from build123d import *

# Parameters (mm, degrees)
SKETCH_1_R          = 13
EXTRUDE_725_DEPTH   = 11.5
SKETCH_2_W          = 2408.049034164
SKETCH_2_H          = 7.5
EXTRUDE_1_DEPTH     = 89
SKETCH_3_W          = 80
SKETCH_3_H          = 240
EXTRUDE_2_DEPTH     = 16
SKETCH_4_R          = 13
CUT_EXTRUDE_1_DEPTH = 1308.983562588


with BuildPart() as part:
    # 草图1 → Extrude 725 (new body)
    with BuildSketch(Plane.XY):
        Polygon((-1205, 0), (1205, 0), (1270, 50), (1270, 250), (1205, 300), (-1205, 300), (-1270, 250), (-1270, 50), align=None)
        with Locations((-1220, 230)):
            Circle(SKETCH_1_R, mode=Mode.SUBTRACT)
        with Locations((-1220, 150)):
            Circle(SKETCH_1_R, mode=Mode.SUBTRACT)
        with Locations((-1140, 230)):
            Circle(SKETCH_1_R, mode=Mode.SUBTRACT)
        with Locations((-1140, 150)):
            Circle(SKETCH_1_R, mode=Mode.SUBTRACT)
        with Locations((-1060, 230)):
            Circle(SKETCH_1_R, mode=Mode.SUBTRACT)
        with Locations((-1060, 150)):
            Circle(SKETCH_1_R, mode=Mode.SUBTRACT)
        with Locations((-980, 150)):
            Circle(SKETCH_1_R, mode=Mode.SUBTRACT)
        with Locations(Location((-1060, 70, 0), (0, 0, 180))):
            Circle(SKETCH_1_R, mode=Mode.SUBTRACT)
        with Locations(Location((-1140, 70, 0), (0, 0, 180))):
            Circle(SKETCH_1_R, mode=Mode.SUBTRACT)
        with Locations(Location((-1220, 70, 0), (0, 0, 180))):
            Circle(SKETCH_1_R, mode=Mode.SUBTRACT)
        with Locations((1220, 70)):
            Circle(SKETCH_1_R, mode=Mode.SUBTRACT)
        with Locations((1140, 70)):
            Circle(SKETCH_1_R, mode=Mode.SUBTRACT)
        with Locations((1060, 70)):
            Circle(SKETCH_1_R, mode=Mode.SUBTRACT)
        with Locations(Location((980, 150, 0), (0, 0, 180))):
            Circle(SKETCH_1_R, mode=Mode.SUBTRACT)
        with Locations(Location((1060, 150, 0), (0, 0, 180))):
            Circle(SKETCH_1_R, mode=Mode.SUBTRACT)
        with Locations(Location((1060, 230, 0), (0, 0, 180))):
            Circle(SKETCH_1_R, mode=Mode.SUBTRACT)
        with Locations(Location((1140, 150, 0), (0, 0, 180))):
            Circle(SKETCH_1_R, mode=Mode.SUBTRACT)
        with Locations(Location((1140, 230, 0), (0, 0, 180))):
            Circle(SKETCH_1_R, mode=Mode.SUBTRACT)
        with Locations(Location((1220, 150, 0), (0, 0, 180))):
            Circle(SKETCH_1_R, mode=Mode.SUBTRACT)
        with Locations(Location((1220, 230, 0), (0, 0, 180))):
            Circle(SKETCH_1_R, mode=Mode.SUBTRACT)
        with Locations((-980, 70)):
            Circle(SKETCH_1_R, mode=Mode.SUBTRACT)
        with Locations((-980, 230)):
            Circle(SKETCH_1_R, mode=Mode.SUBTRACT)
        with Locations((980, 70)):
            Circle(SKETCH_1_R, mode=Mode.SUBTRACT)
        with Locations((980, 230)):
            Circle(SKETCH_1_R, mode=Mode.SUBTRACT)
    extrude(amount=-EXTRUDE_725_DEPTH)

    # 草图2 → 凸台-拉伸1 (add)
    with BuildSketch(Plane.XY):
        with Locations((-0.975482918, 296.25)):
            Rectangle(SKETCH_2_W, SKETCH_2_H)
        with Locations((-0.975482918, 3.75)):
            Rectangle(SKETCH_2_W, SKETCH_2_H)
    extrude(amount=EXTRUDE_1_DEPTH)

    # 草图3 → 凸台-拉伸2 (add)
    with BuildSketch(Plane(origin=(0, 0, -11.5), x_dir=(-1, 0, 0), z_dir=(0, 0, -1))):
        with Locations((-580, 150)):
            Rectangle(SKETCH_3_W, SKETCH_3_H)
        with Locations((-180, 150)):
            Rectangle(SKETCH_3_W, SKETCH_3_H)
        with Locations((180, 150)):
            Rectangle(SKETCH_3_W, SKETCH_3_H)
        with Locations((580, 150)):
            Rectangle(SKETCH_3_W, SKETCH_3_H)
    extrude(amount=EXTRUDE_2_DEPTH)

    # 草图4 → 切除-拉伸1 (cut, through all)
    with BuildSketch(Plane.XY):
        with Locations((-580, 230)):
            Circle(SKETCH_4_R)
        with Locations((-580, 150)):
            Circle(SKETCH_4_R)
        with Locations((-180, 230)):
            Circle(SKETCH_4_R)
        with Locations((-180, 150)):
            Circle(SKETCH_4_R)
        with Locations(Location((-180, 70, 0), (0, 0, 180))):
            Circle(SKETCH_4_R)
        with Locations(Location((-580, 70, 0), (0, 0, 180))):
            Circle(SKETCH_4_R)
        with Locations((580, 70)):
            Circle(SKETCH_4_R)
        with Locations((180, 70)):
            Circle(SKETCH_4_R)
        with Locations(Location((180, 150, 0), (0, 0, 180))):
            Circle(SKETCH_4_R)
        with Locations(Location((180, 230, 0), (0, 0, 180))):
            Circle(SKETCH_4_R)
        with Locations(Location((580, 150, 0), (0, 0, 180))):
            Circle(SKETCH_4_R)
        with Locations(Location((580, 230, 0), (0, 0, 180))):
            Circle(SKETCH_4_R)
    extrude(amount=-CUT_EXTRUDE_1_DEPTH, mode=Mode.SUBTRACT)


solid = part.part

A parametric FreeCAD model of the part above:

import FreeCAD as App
import Part
import Sketcher

V = App.Vector
Q = App.Units.Quantity


def add_polygon(sketch, points):
    """Adds a closed chain of lines whose ends are joined by coincident constraints."""
    first, n = sketch.GeometryCount, len(points)
    for a, b in zip(points, points[1:] + points[:1]):
        sketch.addGeometry(Part.LineSegment(App.Vector(*a, 0), App.Vector(*b, 0)), False)
    for i in range(n):
        sketch.addConstraint(Sketcher.Constraint("Coincident", first + i, 2, first + (i + 1) % n, 1))

doc = App.newDocument("Part")
body = doc.addObject("PartDesign::Body", "Body")

# Sketch on XY plane
sketch1 = body.newObject("Sketcher::SketchObject", "Sketch")
sketch1.AttachmentSupport = (doc.getObject("XY_Plane"), [""])
sketch1.MapMode = "FlatFace"
add_polygon(sketch1, [(-1205, 0), (1205, 0), (1270, 50), (1270, 250), (1205, 300), (-1205, 300), (-1270, 250), (-1270, 50)])  # lines 0-7
sketch1.addGeometry(Part.Circle(V(-1220, 70, 0), V(0, 0, 1), 13), False)  # 8
sketch1.addGeometry(Part.Circle(V(-1140, 70, 0), V(0, 0, 1), 13), False)  # 9
sketch1.addGeometry(Part.Circle(V(-1060, 70, 0), V(0, 0, 1), 13), False)  # 10
sketch1.addGeometry(Part.Circle(V(-980, 70, 0), V(0, 0, 1), 13), False)  # 11
sketch1.addGeometry(Part.Circle(V(980, 70, 0), V(0, 0, 1), 13), False)  # 12
sketch1.addGeometry(Part.Circle(V(1060, 70, 0), V(0, 0, 1), 13), False)  # 13
sketch1.addGeometry(Part.Circle(V(1140, 70, 0), V(0, 0, 1), 13), False)  # 14
sketch1.addGeometry(Part.Circle(V(1220, 70, 0), V(0, 0, 1), 13), False)  # 15
sketch1.addGeometry(Part.Circle(V(-1220, 150, 0), V(0, 0, 1), 13), False)  # 16
sketch1.addGeometry(Part.Circle(V(-1140, 150, 0), V(0, 0, 1), 13), False)  # 17
sketch1.addGeometry(Part.Circle(V(-1060, 150, 0), V(0, 0, 1), 13), False)  # 18
sketch1.addGeometry(Part.Circle(V(-980, 150, 0), V(0, 0, 1), 13), False)  # 19
sketch1.addGeometry(Part.Circle(V(-1220, 230, 0), V(0, 0, 1), 13), False)  # 20
sketch1.addGeometry(Part.Circle(V(-1140, 230, 0), V(0, 0, 1), 13), False)  # 21
sketch1.addGeometry(Part.Circle(V(-1060, 230, 0), V(0, 0, 1), 13), False)  # 22
sketch1.addGeometry(Part.Circle(V(-980, 230, 0), V(0, 0, 1), 13), False)  # 23
sketch1.addGeometry(Part.Circle(V(980, 150, 0), V(0, 0, 1), 13), False)  # 24
sketch1.addGeometry(Part.Circle(V(1060, 150, 0), V(0, 0, 1), 13), False)  # 25
sketch1.addGeometry(Part.Circle(V(1140, 150, 0), V(0, 0, 1), 13), False)  # 26
sketch1.addGeometry(Part.Circle(V(1220, 150, 0), V(0, 0, 1), 13), False)  # 27
sketch1.addGeometry(Part.Circle(V(980, 230, 0), V(0, 0, 1), 13), False)  # 28
sketch1.addGeometry(Part.Circle(V(1060, 230, 0), V(0, 0, 1), 13), False)  # 29
sketch1.addGeometry(Part.Circle(V(1140, 230, 0), V(0, 0, 1), 13), False)  # 30
sketch1.addGeometry(Part.Circle(V(1220, 230, 0), V(0, 0, 1), 13), False)  # 31
sketch1.addConstraint(Sketcher.Constraint("Horizontal", 0))
sketch1.addConstraint(Sketcher.Constraint("Vertical", 2))
sketch1.addConstraint(Sketcher.Constraint("Horizontal", 4))
sketch1.addConstraint(Sketcher.Constraint("Vertical", 6))
sketch1.addConstraint(Sketcher.Constraint("Equal", 8, 9))
sketch1.addConstraint(Sketcher.Constraint("Equal", 9, 10))
sketch1.addConstraint(Sketcher.Constraint("Equal", 10, 11))
sketch1.addConstraint(Sketcher.Constraint("Equal", 11, 12))
sketch1.addConstraint(Sketcher.Constraint("Equal", 12, 13))
sketch1.addConstraint(Sketcher.Constraint("Equal", 13, 14))
sketch1.addConstraint(Sketcher.Constraint("Equal", 14, 15))
sketch1.addConstraint(Sketcher.Constraint("Equal", 15, 16))
sketch1.addConstraint(Sketcher.Constraint("Equal", 16, 17))
sketch1.addConstraint(Sketcher.Constraint("Equal", 17, 18))
sketch1.addConstraint(Sketcher.Constraint("Equal", 18, 19))
sketch1.addConstraint(Sketcher.Constraint("Equal", 19, 20))
sketch1.addConstraint(Sketcher.Constraint("Equal", 20, 21))
sketch1.addConstraint(Sketcher.Constraint("Equal", 21, 22))
sketch1.addConstraint(Sketcher.Constraint("Equal", 22, 23))
sketch1.addConstraint(Sketcher.Constraint("Equal", 23, 24))
sketch1.addConstraint(Sketcher.Constraint("Equal", 24, 25))
sketch1.addConstraint(Sketcher.Constraint("Equal", 25, 26))
sketch1.addConstraint(Sketcher.Constraint("Equal", 26, 27))
sketch1.addConstraint(Sketcher.Constraint("Equal", 27, 28))
sketch1.addConstraint(Sketcher.Constraint("Equal", 28, 29))
sketch1.addConstraint(Sketcher.Constraint("Equal", 29, 30))
sketch1.addConstraint(Sketcher.Constraint("Equal", 30, 31))
sketch1.addConstraint(Sketcher.Constraint("Symmetric", 0, 2, 7, 2, -1, 1))
sketch1.addConstraint(Sketcher.Constraint("Symmetric", 11, 3, 12, 3, -2))
sketch1.addConstraint(Sketcher.Constraint("Symmetric", 10, 3, 13, 3, -2))
sketch1.addConstraint(Sketcher.Constraint("Symmetric", 9, 3, 14, 3, -2))
sketch1.addConstraint(Sketcher.Constraint("Symmetric", 8, 3, 15, 3, -2))
sketch1.addConstraint(Sketcher.Constraint("Symmetric", 19, 3, 24, 3, -2))
sketch1.addConstraint(Sketcher.Constraint("Symmetric", 18, 3, 25, 3, -2))
sketch1.addConstraint(Sketcher.Constraint("Symmetric", 17, 3, 26, 3, -2))
sketch1.addConstraint(Sketcher.Constraint("Symmetric", 16, 3, 27, 3, -2))
sketch1.addConstraint(Sketcher.Constraint("Symmetric", 23, 3, 28, 3, -2))
sketch1.addConstraint(Sketcher.Constraint("Symmetric", 22, 3, 29, 3, -2))
sketch1.addConstraint(Sketcher.Constraint("Symmetric", 21, 3, 30, 3, -2))
sketch1.addConstraint(Sketcher.Constraint("Symmetric", 20, 3, 31, 3, -2))
sketch1.addConstraint(Sketcher.Constraint("Symmetric", 2, 2, 5, 2, -2))
sketch1.addConstraint(Sketcher.Constraint("Parallel", 1, 5))
sketch1.addConstraint(Sketcher.Constraint("Parallel", 3, 7))
sketch1.addConstraint(Sketcher.Constraint("Horizontal", 8, 3, 9, 3))
sketch1.addConstraint(Sketcher.Constraint("Horizontal", 9, 3, 10, 3))
sketch1.addConstraint(Sketcher.Constraint("Horizontal", 10, 3, 11, 3))
sketch1.addConstraint(Sketcher.Constraint("Horizontal", 16, 3, 17, 3))
sketch1.addConstraint(Sketcher.Constraint("Horizontal", 17, 3, 18, 3))
sketch1.addConstraint(Sketcher.Constraint("Horizontal", 18, 3, 19, 3))
sketch1.addConstraint(Sketcher.Constraint("Horizontal", 20, 3, 21, 3))
sketch1.addConstraint(Sketcher.Constraint("Horizontal", 21, 3, 22, 3))
sketch1.addConstraint(Sketcher.Constraint("Horizontal", 22, 3, 23, 3))
sketch1.addConstraint(Sketcher.Constraint("Horizontal", 1, 2, 6, 2))
sketch1.addConstraint(Sketcher.Constraint("Vertical", 8, 3, 16, 3))
sketch1.addConstraint(Sketcher.Constraint("Vertical", 9, 3, 17, 3))
sketch1.addConstraint(Sketcher.Constraint("Vertical", 10, 3, 18, 3))
sketch1.addConstraint(Sketcher.Constraint("Vertical", 11, 3, 19, 3))
sketch1.addConstraint(Sketcher.Constraint("Vertical", 16, 3, 20, 3))
sketch1.addConstraint(Sketcher.Constraint("Vertical", 17, 3, 21, 3))
sketch1.addConstraint(Sketcher.Constraint("Vertical", 18, 3, 22, 3))
sketch1.addConstraint(Sketcher.Constraint("Vertical", 19, 3, 23, 3))
sketch1.addConstraint(Sketcher.Constraint("Vertical", 0, 2, 3, 2))
sketch1.addConstraint(Sketcher.Constraint("Diameter", 8, Q("26 mm")))
sketch1.addConstraint(Sketcher.Constraint("DistanceX", 0, 1, 0, 2, Q("2410 mm")))
sketch1.addConstraint(Sketcher.Constraint("DistanceY", 2, 1, 2, 2, Q("200 mm")))
sketch1.addConstraint(Sketcher.Constraint("DistanceX", 8, 3, -1, 1, Q("1220 mm")))
sketch1.addConstraint(Sketcher.Constraint("DistanceY", -1, 1, 8, 3, Q("70 mm")))
sketch1.addConstraint(Sketcher.Constraint("DistanceX", 9, 3, -1, 1, Q("1140 mm")))
sketch1.addConstraint(Sketcher.Constraint("DistanceX", 10, 3, -1, 1, Q("1060 mm")))
sketch1.addConstraint(Sketcher.Constraint("DistanceX", 11, 3, -1, 1, Q("980 mm")))
sketch1.addConstraint(Sketcher.Constraint("DistanceY", -1, 1, 16, 3, Q("150 mm")))
sketch1.addConstraint(Sketcher.Constraint("DistanceY", -1, 1, 20, 3, Q("230 mm")))
sketch1.addConstraint(Sketcher.Constraint("DistanceX", -1, 1, 1, 2, Q("1270 mm")))
sketch1.addConstraint(Sketcher.Constraint("DistanceY", -1, 1, 1, 2, Q("50 mm")))
pad1 = body.newObject("PartDesign::Pad", "Pad")
pad1.Profile = sketch1
pad1.Length = 11.5
pad1.Reversed = True

# Sketch on XY plane
sketch2 = body.newObject("Sketcher::SketchObject", "Sketch001")
sketch2.AttachmentSupport = (doc.getObject("XY_Plane"), [""])
sketch2.MapMode = "FlatFace"
add_polygon(sketch2, [(-1205, 300), (-1205, 292), (1203, 292), (1203, 300)])  # lines 0-3
add_polygon(sketch2, [(-1205, 8), (-1205, 0), (1203, 0), (1203, 8)])  # lines 4-7
sketch2.addConstraint(Sketcher.Constraint("Vertical", 0))
sketch2.addConstraint(Sketcher.Constraint("Horizontal", 1))
sketch2.addConstraint(Sketcher.Constraint("Vertical", 2))
sketch2.addConstraint(Sketcher.Constraint("Horizontal", 3))
sketch2.addConstraint(Sketcher.Constraint("Vertical", 4))
sketch2.addConstraint(Sketcher.Constraint("Horizontal", 5))
sketch2.addConstraint(Sketcher.Constraint("Vertical", 6))
sketch2.addConstraint(Sketcher.Constraint("Horizontal", 7))
sketch2.addConstraint(Sketcher.Constraint("PointOnObject", 4, 2, -1))
sketch2.addConstraint(Sketcher.Constraint("Vertical", 3, 2, 4, 2))
sketch2.addConstraint(Sketcher.Constraint("Vertical", 2, 2, 5, 2))
sketch2.addConstraint(Sketcher.Constraint("Equal", 2, 4))
sketch2.addConstraint(Sketcher.Constraint("DistanceY", 0, 2, 0, 1, Q("7.5 mm")))
sketch2.addConstraint(Sketcher.Constraint("DistanceX", 0, 2, -1, 1, Q("1205 mm")))
sketch2.addConstraint(Sketcher.Constraint("DistanceY", -1, 1, 2, 2, Q("300 mm")))
sketch2.addConstraint(Sketcher.Constraint("DistanceX", 1, 1, 1, 2, Q("2408.049034 mm")))
pad2 = body.newObject("PartDesign::Pad", "Pad001")
pad2.Profile = sketch2
pad2.Length = 89

# Sketch on XY plane
sketch3 = body.newObject("Sketcher::SketchObject", "Sketch002")
sketch3.AttachmentSupport = (doc.getObject("XY_Plane"), [""])
sketch3.MapMode = "FlatFace"
sketch3.AttachmentOffset = App.Placement(V(0, 0, -11.5), App.Rotation())
add_polygon(sketch3, [(620, 270), (620, 30), (540, 30), (540, 270)])  # lines 0-3
add_polygon(sketch3, [(220, 270), (220, 30), (140, 30), (140, 270)])  # lines 4-7
add_polygon(sketch3, [(-140, 270), (-140, 30), (-220, 30), (-220, 270)])  # lines 8-11
add_polygon(sketch3, [(-540, 270), (-540, 30), (-620, 30), (-620, 270)])  # lines 12-15
sketch3.addConstraint(Sketcher.Constraint("Vertical", 0))
sketch3.addConstraint(Sketcher.Constraint("Horizontal", 1))
sketch3.addConstraint(Sketcher.Constraint("Vertical", 2))
sketch3.addConstraint(Sketcher.Constraint("Horizontal", 3))
sketch3.addConstraint(Sketcher.Constraint("Vertical", 4))
sketch3.addConstraint(Sketcher.Constraint("Horizontal", 5))
sketch3.addConstraint(Sketcher.Constraint("Vertical", 6))
sketch3.addConstraint(Sketcher.Constraint("Horizontal", 7))
sketch3.addConstraint(Sketcher.Constraint("Vertical", 8))
sketch3.addConstraint(Sketcher.Constraint("Horizontal", 9))
sketch3.addConstraint(Sketcher.Constraint("Vertical", 10))
sketch3.addConstraint(Sketcher.Constraint("Horizontal", 11))
sketch3.addConstraint(Sketcher.Constraint("Vertical", 12))
sketch3.addConstraint(Sketcher.Constraint("Horizontal", 13))
sketch3.addConstraint(Sketcher.Constraint("Vertical", 14))
sketch3.addConstraint(Sketcher.Constraint("Horizontal", 15))
sketch3.addConstraint(Sketcher.Constraint("Symmetric", 5, 2, 8, 2, -2))
sketch3.addConstraint(Sketcher.Constraint("Symmetric", 7, 2, 10, 2, -2))
sketch3.addConstraint(Sketcher.Constraint("Symmetric", 1, 2, 12, 2, -2))
sketch3.addConstraint(Sketcher.Constraint("Symmetric", 3, 2, 14, 2, -2))
sketch3.addConstraint(Sketcher.Constraint("Horizontal", 1, 2, 4, 2))
sketch3.addConstraint(Sketcher.Constraint("Horizontal", 3, 2, 6, 2))
sketch3.addConstraint(Sketcher.Constraint("Equal", 3, 5))
sketch3.addConstraint(Sketcher.Constraint("DistanceX", 1, 2, 1, 1, Q("80 mm")))
sketch3.addConstraint(Sketcher.Constraint("DistanceY", 0, 2, 0, 1, Q("240 mm")))
sketch3.addConstraint(Sketcher.Constraint("DistanceX", -1, 1, 0, 2, Q("620 mm")))
sketch3.addConstraint(Sketcher.Constraint("DistanceY", -1, 1, 0, 2, Q("30 mm")))
sketch3.addConstraint(Sketcher.Constraint("DistanceX", -1, 1, 4, 2, Q("220 mm")))
pad3 = body.newObject("PartDesign::Pad", "Pad002")
pad3.Profile = sketch3
pad3.Length = 16
pad3.Reversed = True

# Sketch on XY plane
sketch4 = body.newObject("Sketcher::SketchObject", "Sketch003")
sketch4.AttachmentSupport = (doc.getObject("XY_Plane"), [""])
sketch4.MapMode = "FlatFace"
sketch4.addGeometry(Part.Circle(V(-580, 230, 0), V(0, 0, 1), 13), False)
sketch4.addGeometry(Part.Circle(V(-580, 150, 0), V(0, 0, 1), 13), False)
sketch4.addGeometry(Part.Circle(V(-180, 230, 0), V(0, 0, 1), 13), False)
sketch4.addGeometry(Part.Circle(V(-180, 150, 0), V(0, 0, 1), 13), False)
sketch4.addGeometry(Part.Circle(V(-180, 70, 0), V(0, 0, 1), 13), False)
sketch4.addGeometry(Part.Circle(V(-580, 70, 0), V(0, 0, 1), 13), False)
sketch4.addGeometry(Part.Circle(V(580, 70, 0), V(0, 0, 1), 13), False)
sketch4.addGeometry(Part.Circle(V(180, 70, 0), V(0, 0, 1), 13), False)
sketch4.addGeometry(Part.Circle(V(180, 150, 0), V(0, 0, 1), 13), False)
sketch4.addGeometry(Part.Circle(V(180, 230, 0), V(0, 0, 1), 13), False)
sketch4.addGeometry(Part.Circle(V(580, 150, 0), V(0, 0, 1), 13), False)
sketch4.addGeometry(Part.Circle(V(580, 230, 0), V(0, 0, 1), 13), False)
sketch4.addConstraint(Sketcher.Constraint("Equal", 0, 1))
sketch4.addConstraint(Sketcher.Constraint("Equal", 1, 2))
sketch4.addConstraint(Sketcher.Constraint("Equal", 2, 3))
sketch4.addConstraint(Sketcher.Constraint("Equal", 3, 4))
sketch4.addConstraint(Sketcher.Constraint("Equal", 4, 5))
sketch4.addConstraint(Sketcher.Constraint("Equal", 5, 6))
sketch4.addConstraint(Sketcher.Constraint("Equal", 6, 7))
sketch4.addConstraint(Sketcher.Constraint("Equal", 7, 8))
sketch4.addConstraint(Sketcher.Constraint("Equal", 8, 9))
sketch4.addConstraint(Sketcher.Constraint("Equal", 9, 10))
sketch4.addConstraint(Sketcher.Constraint("Equal", 10, 11))
sketch4.addConstraint(Sketcher.Constraint("Symmetric", 5, 3, 6, 3, -2))
sketch4.addConstraint(Sketcher.Constraint("Symmetric", 4, 3, 7, 3, -2))
sketch4.addConstraint(Sketcher.Constraint("Symmetric", 3, 3, 8, 3, -2))
sketch4.addConstraint(Sketcher.Constraint("Symmetric", 2, 3, 9, 3, -2))
sketch4.addConstraint(Sketcher.Constraint("Symmetric", 1, 3, 10, 3, -2))
sketch4.addConstraint(Sketcher.Constraint("Symmetric", 0, 3, 11, 3, -2))
sketch4.addConstraint(Sketcher.Constraint("Horizontal", 0, 3, 2, 3))
sketch4.addConstraint(Sketcher.Constraint("Horizontal", 1, 3, 3, 3))
sketch4.addConstraint(Sketcher.Constraint("Horizontal", 4, 3, 5, 3))
sketch4.addConstraint(Sketcher.Constraint("Vertical", 0, 3, 1, 3))
sketch4.addConstraint(Sketcher.Constraint("Vertical", 2, 3, 3, 3))
sketch4.addConstraint(Sketcher.Constraint("Vertical", 3, 3, 4, 3))
sketch4.addConstraint(Sketcher.Constraint("Vertical", 1, 3, 5, 3))
sketch4.addConstraint(Sketcher.Constraint("Diameter", 0, Q("26 mm")))
sketch4.addConstraint(Sketcher.Constraint("DistanceX", 0, 3, -1, 1, Q("580 mm")))
sketch4.addConstraint(Sketcher.Constraint("DistanceY", -1, 1, 0, 3, Q("230 mm")))
sketch4.addConstraint(Sketcher.Constraint("DistanceY", -1, 1, 1, 3, Q("150 mm")))
sketch4.addConstraint(Sketcher.Constraint("DistanceX", 2, 3, -1, 1, Q("180 mm")))
sketch4.addConstraint(Sketcher.Constraint("DistanceY", -1, 1, 4, 3, Q("70 mm")))
pocket1 = body.newObject("PartDesign::Pocket", "Pocket")
pocket1.Profile = sketch4
pocket1.Type = "ThroughAll"

doc.recompute()
